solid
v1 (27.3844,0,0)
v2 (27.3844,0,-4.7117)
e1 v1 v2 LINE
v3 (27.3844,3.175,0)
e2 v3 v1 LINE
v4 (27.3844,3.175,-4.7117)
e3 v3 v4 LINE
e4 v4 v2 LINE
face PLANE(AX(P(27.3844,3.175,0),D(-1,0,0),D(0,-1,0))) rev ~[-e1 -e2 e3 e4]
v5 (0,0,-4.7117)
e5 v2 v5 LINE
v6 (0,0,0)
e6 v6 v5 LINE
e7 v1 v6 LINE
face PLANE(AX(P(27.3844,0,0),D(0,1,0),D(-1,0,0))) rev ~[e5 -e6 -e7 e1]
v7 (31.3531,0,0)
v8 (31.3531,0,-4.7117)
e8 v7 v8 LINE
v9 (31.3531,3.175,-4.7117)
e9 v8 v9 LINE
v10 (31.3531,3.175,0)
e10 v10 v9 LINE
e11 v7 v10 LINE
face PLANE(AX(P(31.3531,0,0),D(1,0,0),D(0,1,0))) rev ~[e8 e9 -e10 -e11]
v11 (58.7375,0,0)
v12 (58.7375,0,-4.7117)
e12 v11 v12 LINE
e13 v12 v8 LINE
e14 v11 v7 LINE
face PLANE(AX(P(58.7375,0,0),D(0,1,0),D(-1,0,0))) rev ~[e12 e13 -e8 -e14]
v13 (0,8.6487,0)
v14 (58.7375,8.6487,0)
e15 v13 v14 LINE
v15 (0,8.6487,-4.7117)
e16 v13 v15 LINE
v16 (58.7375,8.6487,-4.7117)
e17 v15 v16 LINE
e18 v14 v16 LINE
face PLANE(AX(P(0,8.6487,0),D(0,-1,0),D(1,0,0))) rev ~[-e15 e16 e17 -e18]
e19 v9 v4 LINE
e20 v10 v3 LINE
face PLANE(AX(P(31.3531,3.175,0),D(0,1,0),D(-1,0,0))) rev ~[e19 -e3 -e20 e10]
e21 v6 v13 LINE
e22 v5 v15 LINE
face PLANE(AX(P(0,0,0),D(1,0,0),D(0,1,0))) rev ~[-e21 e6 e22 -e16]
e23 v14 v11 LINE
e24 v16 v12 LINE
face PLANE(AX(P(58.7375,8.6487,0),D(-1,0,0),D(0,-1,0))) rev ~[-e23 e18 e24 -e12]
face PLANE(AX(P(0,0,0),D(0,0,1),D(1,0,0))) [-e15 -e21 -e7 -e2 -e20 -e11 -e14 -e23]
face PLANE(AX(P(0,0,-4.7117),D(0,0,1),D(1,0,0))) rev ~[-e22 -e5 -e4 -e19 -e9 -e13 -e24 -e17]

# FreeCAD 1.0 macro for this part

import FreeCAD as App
import Part
import Sketcher
from FreeCAD import Vector
Q = App.Units.Quantity


def add_polygon(sketch, points):
    """Adds a closed chain of lines whose ends are joined by coincident constraints."""
    first, n = sketch.GeometryCount, len(points)
    for a, b in zip(points, points[1:] + points[:1]):
        sketch.addGeometry(Part.LineSegment(App.Vector(*a, 0), App.Vector(*b, 0)), False)
    for i in range(n):
        sketch.addConstraint(Sketcher.Constraint("Coincident", first + i, 2, first + (i + 1) % n, 1))

doc = App.newDocument("Part")
body = doc.addObject("PartDesign::Body", "Body")

# Sketch on XY plane
sketch1 = doc.addObject("Sketcher::SketchObject", "Sketch")
body.addObject(sketch1)
sketch1.AttachmentSupport = (doc.XY_Plane, [""])
sketch1.MapMode = "FlatFace"
add_polygon(sketch1, [(0, 8.6), (0, 0), (27.4, 0), (27.4, 3.2), (31.4, 3.2), (31.4, 0), (58.7, 0), (58.7, 8.6)])  # lines 0-7
sketch1.addConstraint(Sketcher.Constraint("Vertical", 0))
sketch1.addConstraint(Sketcher.Constraint("Horizontal", 1))
sketch1.addConstraint(Sketcher.Constraint("Vertical", 2))
sketch1.addConstraint(Sketcher.Constraint("Horizontal", 3))
sketch1.addConstraint(Sketcher.Constraint("Vertical", 4))
sketch1.addConstraint(Sketcher.Constraint("Horizontal", 5))
sketch1.addConstraint(Sketcher.Constraint("Vertical", 6))
sketch1.addConstraint(Sketcher.Constraint("Horizontal", 7))
sketch1.addConstraint(Sketcher.Constraint("Coincident", 0, 2, -1, 1))
sketch1.addConstraint(Sketcher.Constraint("PointOnObject", 4, 2, -1))
sketch1.addConstraint(Sketcher.Constraint("Equal", 1, 5))
sketch1.addConstraint(Sketcher.Constraint("DistanceX", 3, 1, 3, 2, Q("0.156248 in")))
sketch1.addConstraint(Sketcher.Constraint("DistanceX", 7, 2, 7, 1, Q("2.3125 in")))
sketch1.addConstraint(Sketcher.Constraint("DistanceY", 2, 1, 2, 2, Q("0.125 in")))
sketch1.addConstraint(Sketcher.Constraint("DistanceY", 0, 2, 0, 1, Q("0.3405 in")))
pad1 = doc.addObject("PartDesign::Pad", "Pad")
body.addObject(pad1)
pad1.Profile = sketch1
pad1.Length = Q("0.1855 in")
pad1.Reversed = True

doc.recompute()
